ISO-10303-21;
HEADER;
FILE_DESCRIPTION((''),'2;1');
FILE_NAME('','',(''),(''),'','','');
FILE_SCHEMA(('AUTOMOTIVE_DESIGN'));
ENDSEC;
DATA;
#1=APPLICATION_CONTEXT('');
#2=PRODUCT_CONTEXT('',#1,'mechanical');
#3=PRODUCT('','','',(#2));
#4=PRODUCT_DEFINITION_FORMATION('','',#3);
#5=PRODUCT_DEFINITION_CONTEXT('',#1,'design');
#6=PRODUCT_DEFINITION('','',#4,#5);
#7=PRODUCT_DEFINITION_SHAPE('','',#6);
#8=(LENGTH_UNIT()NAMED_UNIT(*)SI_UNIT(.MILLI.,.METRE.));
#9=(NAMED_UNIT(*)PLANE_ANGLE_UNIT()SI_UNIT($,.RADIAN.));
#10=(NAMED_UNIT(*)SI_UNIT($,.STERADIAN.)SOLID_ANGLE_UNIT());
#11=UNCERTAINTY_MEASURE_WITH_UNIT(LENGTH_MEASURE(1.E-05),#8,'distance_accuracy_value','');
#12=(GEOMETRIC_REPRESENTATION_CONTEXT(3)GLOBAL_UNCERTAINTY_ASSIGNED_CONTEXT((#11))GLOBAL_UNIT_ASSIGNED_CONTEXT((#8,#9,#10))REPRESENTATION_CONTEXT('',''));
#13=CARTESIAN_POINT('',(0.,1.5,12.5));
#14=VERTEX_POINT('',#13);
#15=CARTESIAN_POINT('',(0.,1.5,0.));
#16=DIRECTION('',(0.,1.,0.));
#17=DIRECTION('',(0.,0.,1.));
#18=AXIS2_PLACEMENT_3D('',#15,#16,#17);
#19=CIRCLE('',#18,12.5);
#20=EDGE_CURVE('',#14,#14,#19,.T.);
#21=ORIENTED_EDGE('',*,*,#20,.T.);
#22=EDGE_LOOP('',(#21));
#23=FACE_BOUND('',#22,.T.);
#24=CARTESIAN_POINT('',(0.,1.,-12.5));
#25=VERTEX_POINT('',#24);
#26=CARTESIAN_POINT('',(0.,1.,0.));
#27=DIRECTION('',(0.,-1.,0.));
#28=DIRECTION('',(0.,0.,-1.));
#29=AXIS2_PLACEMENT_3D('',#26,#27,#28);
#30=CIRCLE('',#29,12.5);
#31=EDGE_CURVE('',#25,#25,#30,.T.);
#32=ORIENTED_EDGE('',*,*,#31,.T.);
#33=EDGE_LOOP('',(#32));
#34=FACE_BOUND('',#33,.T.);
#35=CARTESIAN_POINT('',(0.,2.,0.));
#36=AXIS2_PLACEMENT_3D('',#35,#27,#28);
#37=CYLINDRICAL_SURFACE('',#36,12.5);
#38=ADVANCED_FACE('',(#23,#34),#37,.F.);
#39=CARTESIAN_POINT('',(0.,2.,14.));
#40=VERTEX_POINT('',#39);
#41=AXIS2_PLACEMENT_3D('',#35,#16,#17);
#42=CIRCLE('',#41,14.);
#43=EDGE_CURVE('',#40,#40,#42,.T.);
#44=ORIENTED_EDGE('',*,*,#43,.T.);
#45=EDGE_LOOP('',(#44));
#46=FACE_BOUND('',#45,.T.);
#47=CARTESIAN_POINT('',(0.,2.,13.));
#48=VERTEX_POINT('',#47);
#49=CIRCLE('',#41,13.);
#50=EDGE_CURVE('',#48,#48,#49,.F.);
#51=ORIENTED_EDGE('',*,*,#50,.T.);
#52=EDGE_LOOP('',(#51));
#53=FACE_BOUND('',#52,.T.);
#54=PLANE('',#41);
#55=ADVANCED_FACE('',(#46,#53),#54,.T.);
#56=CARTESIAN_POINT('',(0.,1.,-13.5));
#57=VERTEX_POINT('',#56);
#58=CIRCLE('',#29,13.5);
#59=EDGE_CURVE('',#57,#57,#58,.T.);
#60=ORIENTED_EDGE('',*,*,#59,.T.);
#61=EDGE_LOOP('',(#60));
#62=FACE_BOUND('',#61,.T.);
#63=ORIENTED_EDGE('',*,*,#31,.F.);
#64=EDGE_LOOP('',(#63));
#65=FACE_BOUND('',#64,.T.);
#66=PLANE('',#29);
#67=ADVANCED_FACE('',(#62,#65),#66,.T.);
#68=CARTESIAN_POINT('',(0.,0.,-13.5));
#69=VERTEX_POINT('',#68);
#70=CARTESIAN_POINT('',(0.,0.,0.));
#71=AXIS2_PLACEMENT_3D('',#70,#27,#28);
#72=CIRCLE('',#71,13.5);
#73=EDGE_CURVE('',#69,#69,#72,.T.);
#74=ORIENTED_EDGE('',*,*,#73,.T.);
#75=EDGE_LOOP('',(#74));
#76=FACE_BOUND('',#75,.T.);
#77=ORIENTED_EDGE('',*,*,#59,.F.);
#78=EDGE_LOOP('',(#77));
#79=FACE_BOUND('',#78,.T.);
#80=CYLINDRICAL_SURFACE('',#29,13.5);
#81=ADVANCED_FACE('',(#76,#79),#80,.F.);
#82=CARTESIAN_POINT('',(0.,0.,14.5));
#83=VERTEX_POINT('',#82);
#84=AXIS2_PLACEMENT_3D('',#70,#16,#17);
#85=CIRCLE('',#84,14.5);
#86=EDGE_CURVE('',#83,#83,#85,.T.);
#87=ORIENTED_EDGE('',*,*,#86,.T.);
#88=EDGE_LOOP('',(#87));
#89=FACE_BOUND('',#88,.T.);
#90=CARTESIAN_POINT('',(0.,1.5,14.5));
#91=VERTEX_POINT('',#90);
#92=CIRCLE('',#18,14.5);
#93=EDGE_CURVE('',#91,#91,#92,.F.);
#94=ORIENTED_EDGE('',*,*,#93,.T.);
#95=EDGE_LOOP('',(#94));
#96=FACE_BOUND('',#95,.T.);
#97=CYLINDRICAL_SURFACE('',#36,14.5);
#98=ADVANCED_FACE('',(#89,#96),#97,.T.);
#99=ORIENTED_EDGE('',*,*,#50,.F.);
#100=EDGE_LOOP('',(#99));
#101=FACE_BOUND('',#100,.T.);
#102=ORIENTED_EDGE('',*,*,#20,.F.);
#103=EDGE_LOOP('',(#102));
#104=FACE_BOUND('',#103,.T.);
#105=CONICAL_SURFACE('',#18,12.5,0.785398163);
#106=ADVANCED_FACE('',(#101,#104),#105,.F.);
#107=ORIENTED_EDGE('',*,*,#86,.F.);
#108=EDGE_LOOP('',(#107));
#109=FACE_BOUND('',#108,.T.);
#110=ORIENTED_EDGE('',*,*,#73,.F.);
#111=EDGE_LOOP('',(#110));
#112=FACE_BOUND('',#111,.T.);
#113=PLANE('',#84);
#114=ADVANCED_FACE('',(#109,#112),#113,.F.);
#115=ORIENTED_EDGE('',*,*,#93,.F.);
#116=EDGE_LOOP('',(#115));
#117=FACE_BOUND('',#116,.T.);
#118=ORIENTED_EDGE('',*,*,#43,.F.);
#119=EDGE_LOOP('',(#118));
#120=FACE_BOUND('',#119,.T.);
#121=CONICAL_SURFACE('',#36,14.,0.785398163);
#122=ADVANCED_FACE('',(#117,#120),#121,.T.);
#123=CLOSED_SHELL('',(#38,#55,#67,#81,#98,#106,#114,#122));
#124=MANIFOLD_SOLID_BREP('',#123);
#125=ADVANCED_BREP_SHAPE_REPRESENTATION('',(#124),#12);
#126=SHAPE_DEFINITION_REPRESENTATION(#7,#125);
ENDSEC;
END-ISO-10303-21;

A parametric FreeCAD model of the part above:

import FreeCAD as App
import Part
import Sketcher

V = App.Vector


def edges_at(feature, points):
    """Names of the edges that pass closest to the given points."""
    edges = feature.Shape.Edges
    near = lambda p: min(range(len(edges)), key=lambda i: edges[i].distToShape(Part.Vertex(*p))[0])
    return sorted({f"Edge{near(p) + 1}" for p in points})

doc = App.newDocument("Part")
body = doc.addObject("PartDesign::Body", "Body")

# Sketch on XZ plane
sketch1 = doc.addObject("Sketcher::SketchObject", "Sketch")
body.addObject(sketch1)
sketch1.AttachmentSupport = (doc.XZ_Plane, [""])
sketch1.MapMode = "FlatFace"
sketch1.addGeometry([
    Part.Circle(V(0, 0, 0), V(0, 0, 1), 14),
    Part.Circle(V(0, 0, 0), V(0, 0, 1), 12),
], False)
sketch1.addConstraint([
    Sketcher.Constraint("Coincident", 0, 3, -1, 1),
    Sketcher.Constraint("Coincident", 1, 3, -1, 1),
    Sketcher.Constraint("Diameter", 0, 29.0),
    Sketcher.Constraint("Diameter", 1, 25.0),
])
pad1 = doc.addObject("PartDesign::Pad", "Pad")
body.addObject(pad1)
pad1.Profile = sketch1
pad1.Length = 2
pad1.Reversed = True

# Sketch on XZ plane
sketch2 = doc.addObject("Sketcher::SketchObject", "Sketch001")
body.addObject(sketch2)
sketch2.AttachmentSupport = (doc.XZ_Plane, [""])
sketch2.MapMode = "FlatFace"
sketch2.addGeometry(Part.Circle(V(0, 0, 0), V(0, 0, 1), 14), False)
sketch2.addConstraint([
    Sketcher.Constraint("Coincident", 0, 3, -1, 1),
    Sketcher.Constraint("Diameter", 0, 27.0),
])
pocket1 = doc.addObject("PartDesign::Pocket", "Pocket")
body.addObject(pocket1)
pocket1.Profile = sketch2
pocket1.Length = 1
doc.recompute()

chamfer = doc.addObject("PartDesign::Chamfer", "Chamfer")
body.addObject(chamfer)
chamfer.Base = (pocket1, edges_at(pocket1, [(-14.5, 2, 0), (-12.5, 2, 0)]))
chamfer.Size = 0.5

doc.recompute()
